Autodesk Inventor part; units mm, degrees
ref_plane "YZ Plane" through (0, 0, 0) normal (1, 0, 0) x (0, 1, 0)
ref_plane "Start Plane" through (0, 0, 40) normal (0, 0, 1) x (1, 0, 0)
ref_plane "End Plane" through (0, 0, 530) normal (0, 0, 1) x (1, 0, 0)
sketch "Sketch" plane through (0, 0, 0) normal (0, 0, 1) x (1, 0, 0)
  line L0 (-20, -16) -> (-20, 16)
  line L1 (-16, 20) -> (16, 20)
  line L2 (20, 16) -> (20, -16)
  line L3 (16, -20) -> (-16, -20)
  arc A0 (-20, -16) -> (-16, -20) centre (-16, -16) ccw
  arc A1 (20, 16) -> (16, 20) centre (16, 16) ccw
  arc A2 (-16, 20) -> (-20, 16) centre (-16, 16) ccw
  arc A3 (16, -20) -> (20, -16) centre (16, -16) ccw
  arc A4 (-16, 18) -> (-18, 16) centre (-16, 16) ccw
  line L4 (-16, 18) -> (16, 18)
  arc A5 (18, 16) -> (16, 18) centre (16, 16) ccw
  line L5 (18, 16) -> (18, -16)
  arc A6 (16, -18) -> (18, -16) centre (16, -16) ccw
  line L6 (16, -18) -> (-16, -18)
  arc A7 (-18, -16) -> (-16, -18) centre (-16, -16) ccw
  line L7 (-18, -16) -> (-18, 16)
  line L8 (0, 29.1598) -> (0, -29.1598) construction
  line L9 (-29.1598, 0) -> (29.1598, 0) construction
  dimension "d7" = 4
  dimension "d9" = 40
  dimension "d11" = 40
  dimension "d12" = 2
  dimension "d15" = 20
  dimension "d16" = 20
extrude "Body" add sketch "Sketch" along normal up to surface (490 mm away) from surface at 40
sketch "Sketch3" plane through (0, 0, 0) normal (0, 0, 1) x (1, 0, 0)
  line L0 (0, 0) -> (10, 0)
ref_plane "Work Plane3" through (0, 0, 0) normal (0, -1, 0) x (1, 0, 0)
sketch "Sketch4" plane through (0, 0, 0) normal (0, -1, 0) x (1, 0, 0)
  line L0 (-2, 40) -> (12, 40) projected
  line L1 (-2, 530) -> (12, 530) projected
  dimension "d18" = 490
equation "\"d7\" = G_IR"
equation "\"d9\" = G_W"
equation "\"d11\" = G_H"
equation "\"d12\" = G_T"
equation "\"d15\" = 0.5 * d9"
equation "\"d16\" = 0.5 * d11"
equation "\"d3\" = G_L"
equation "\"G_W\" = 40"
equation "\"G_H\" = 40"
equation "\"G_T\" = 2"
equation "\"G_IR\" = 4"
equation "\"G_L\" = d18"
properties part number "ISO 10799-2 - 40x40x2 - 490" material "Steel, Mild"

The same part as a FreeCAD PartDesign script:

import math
import FreeCAD as App
import Part
import Sketcher
from FreeCAD import Vector
Q = App.Units.Quantity

doc = App.newDocument("Part")
body = doc.addObject("PartDesign::Body", "Body")

# Sketch on XY plane
sketch1 = body.newObject("Sketcher::SketchObject", "Sketch")
sketch1.AttachmentSupport = (doc.getObject("XY_Plane"), [""])
sketch1.MapMode = "FlatFace"
sketch1.AttachmentOffset = App.Placement(Vector(0, 0, 40), App.Rotation())
sketch1.addGeometry(Part.LineSegment(Vector(-20, 16, 0), Vector(-20, -16, 0)), False)
sketch1.addGeometry(Part.ArcOfCircle(Part.Circle(Vector(-16, -16, 0), Vector(0, 0, 1), 4), math.radians(180), math.radians(270)), False)
sketch1.addGeometry(Part.LineSegment(Vector(-16, -20, 0), Vector(16, -20, 0)), False)
sketch1.addGeometry(Part.ArcOfCircle(Part.Circle(Vector(16, -16, 0), Vector(0, 0, 1), 4), math.radians(-90), math.radians(0)), False)
sketch1.addGeometry(Part.LineSegment(Vector(20, -16, 0), Vector(20, 16, 0)), False)
sketch1.addGeometry(Part.ArcOfCircle(Part.Circle(Vector(16, 16, 0), Vector(0, 0, 1), 4), math.radians(0), math.radians(90)), False)
sketch1.addGeometry(Part.LineSegment(Vector(16, 20, 0), Vector(-16, 20, 0)), False)
sketch1.addGeometry(Part.ArcOfCircle(Part.Circle(Vector(-16, 16, 0), Vector(0, 0, 1), 4), math.radians(90), math.radians(180)), False)
sketch1.addGeometry(Part.ArcOfCircle(Part.Circle(Vector(-16, 16, 0), Vector(0, 0, 1), 2), math.radians(90), math.radians(180)), False)
sketch1.addGeometry(Part.LineSegment(Vector(-16, 18, 0), Vector(16, 18, 0)), False)
sketch1.addGeometry(Part.ArcOfCircle(Part.Circle(Vector(16, 16, 0), Vector(0, 0, 1), 2), math.radians(0), math.radians(90)), False)
sketch1.addGeometry(Part.LineSegment(Vector(18, 16, 0), Vector(18, -16, 0)), False)
sketch1.addGeometry(Part.ArcOfCircle(Part.Circle(Vector(16, -16, 0), Vector(0, 0, 1), 2), math.radians(-90), math.radians(0)), False)
sketch1.addGeometry(Part.LineSegment(Vector(16, -18, 0), Vector(-16, -18, 0)), False)
sketch1.addGeometry(Part.ArcOfCircle(Part.Circle(Vector(-16, -16, 0), Vector(0, 0, 1), 2), math.radians(180), math.radians(270)), False)
sketch1.addGeometry(Part.LineSegment(Vector(-18, -16, 0), Vector(-18, 16, 0)), False)
sketch1.addConstraint(Sketcher.Constraint("Tangent", 0, 2, 1, 1))
sketch1.addConstraint(Sketcher.Constraint("Tangent", 1, 2, 2, 1))
sketch1.addConstraint(Sketcher.Constraint("Tangent", 2, 2, 3, 1))
sketch1.addConstraint(Sketcher.Constraint("Tangent", 3, 2, 4, 1))
sketch1.addConstraint(Sketcher.Constraint("Tangent", 4, 2, 5, 1))
sketch1.addConstraint(Sketcher.Constraint("Tangent", 5, 2, 6, 1))
sketch1.addConstraint(Sketcher.Constraint("Tangent", 6, 2, 7, 1))
sketch1.addConstraint(Sketcher.Constraint("Tangent", 7, 2, 0, 1))
sketch1.addConstraint(Sketcher.Constraint("Tangent", 8, 1, 9, 1))
sketch1.addConstraint(Sketcher.Constraint("Tangent", 9, 2, 10, 2))
sketch1.addConstraint(Sketcher.Constraint("Tangent", 10, 1, 11, 1))
sketch1.addConstraint(Sketcher.Constraint("Tangent", 11, 2, 12, 2))
sketch1.addConstraint(Sketcher.Constraint("Tangent", 12, 1, 13, 1))
sketch1.addConstraint(Sketcher.Constraint("Tangent", 13, 2, 14, 2))
sketch1.addConstraint(Sketcher.Constraint("Tangent", 14, 1, 15, 1))
sketch1.addConstraint(Sketcher.Constraint("Tangent", 15, 2, 8, 2))
sketch1.addConstraint(Sketcher.Constraint("Vertical", 0))
sketch1.addConstraint(Sketcher.Constraint("Horizontal", 2))
sketch1.addConstraint(Sketcher.Constraint("Vertical", 4))
sketch1.addConstraint(Sketcher.Constraint("Horizontal", 6))
sketch1.addConstraint(Sketcher.Constraint("Horizontal", 9))
sketch1.addConstraint(Sketcher.Constraint("Vertical", 11))
sketch1.addConstraint(Sketcher.Constraint("Horizontal", 13))
sketch1.addConstraint(Sketcher.Constraint("Vertical", 15))
sketch1.addConstraint(Sketcher.Constraint("Coincident", 8, 3, 7, 3))
sketch1.addConstraint(Sketcher.Constraint("Coincident", 10, 3, 5, 3))
sketch1.addConstraint(Sketcher.Constraint("Coincident", 12, 3, 3, 3))
sketch1.addConstraint(Sketcher.Constraint("Equal", 1, 3))
sketch1.addConstraint(Sketcher.Constraint("Equal", 3, 5))
sketch1.addConstraint(Sketcher.Constraint("Equal", 5, 7))
sketch1.addConstraint(Sketcher.Constraint("Equal", 12, 14))
sketch1.addConstraint(Sketcher.Constraint("Symmetric", 1, 3, 5, 3, -1, 1))
sketch1.addConstraint(Sketcher.Constraint("Equal", 13, 0))
sketch1.addConstraint(Sketcher.Constraint("Radius", 1, Q("4 mm")))
sketch1.addConstraint(Sketcher.Constraint("Radius", 8, Q("2 mm")))
sketch1.addConstraint(Sketcher.Constraint("DistanceX", 0, 2, -1, 1, Q("20 mm")))
pad1 = body.newObject("PartDesign::Pad", "Pad")
pad1.Profile = sketch1
pad1.Length = 490

doc.recompute()
